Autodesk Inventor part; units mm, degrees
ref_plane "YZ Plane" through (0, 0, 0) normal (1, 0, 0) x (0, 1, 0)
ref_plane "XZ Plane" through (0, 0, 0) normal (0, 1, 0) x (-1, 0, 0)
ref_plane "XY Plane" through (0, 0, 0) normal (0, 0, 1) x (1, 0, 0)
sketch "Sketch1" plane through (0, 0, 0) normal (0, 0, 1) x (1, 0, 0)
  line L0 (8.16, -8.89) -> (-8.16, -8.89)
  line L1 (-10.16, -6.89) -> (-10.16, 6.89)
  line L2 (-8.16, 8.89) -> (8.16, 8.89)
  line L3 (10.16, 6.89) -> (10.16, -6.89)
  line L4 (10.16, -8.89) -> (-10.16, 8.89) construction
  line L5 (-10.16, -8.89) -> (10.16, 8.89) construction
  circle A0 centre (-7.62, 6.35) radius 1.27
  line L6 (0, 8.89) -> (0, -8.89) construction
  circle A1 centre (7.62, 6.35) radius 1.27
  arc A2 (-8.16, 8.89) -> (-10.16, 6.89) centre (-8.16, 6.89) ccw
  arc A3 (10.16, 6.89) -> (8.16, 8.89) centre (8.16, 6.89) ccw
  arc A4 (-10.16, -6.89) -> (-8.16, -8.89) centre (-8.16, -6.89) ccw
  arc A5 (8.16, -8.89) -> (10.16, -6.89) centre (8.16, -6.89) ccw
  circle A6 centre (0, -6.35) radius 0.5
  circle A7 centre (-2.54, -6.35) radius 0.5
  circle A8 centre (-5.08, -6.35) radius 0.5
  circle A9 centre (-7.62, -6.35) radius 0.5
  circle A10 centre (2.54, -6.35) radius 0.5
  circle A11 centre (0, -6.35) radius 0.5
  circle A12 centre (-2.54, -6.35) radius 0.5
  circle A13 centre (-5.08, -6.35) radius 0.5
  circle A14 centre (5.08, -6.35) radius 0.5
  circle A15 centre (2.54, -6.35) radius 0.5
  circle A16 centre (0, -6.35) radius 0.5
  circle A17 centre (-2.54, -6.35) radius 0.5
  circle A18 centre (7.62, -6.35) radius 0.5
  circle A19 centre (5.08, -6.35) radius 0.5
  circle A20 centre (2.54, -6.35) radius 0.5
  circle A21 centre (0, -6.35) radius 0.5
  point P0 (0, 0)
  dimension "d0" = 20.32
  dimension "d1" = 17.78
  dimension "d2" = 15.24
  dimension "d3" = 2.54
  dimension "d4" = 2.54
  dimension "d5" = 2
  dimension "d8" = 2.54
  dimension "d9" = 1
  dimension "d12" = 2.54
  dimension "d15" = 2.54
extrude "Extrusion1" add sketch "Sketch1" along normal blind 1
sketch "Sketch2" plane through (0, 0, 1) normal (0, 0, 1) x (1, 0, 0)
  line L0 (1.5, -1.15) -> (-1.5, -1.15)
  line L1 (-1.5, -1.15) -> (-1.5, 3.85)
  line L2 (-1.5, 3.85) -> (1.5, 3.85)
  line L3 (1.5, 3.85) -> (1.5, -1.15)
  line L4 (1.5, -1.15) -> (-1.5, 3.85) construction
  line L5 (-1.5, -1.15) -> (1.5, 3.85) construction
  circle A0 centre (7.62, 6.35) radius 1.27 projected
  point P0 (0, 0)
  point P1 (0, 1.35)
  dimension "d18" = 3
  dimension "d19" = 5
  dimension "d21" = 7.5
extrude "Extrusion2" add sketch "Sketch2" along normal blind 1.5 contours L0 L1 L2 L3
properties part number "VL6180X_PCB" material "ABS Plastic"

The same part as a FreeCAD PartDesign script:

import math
import FreeCAD as App
import Part
import Sketcher

V = App.Vector

doc = App.newDocument("Part")
body = doc.addObject("PartDesign::Body", "Body")

# Sketch on XY plane
sketch1 = doc.addObject("Sketcher::SketchObject", "Sketch")
body.addObject(sketch1)
sketch1.AttachmentSupport = (doc.XY_Plane, [""])
sketch1.MapMode = "FlatFace"
sketch1.addGeometry([
    Part.LineSegment(V(-8.2, -8.9, 0), V(8.2, -8.9, 0)),  # 0
    Part.ArcOfCircle(Part.Circle(V(8.2, -6.9, 0), V(0, 0, 1), 2), math.radians(-90), math.radians(0)),  # 1
    Part.LineSegment(V(10.2, -6.9, 0), V(10.2, 6.9, 0)),  # 2
    Part.ArcOfCircle(Part.Circle(V(8.2, 6.9, 0), V(0, 0, 1), 2), math.radians(0), math.radians(90)),  # 3
    Part.LineSegment(V(8.2, 8.9, 0), V(-8.2, 8.9, 0)),  # 4
    Part.ArcOfCircle(Part.Circle(V(-8.2, 6.9, 0), V(0, 0, 1), 2), math.radians(90), math.radians(180)),  # 5
    Part.LineSegment(V(-10.2, 6.9, 0), V(-10.2, -6.9, 0)),  # 6
    Part.ArcOfCircle(Part.Circle(V(-8.2, -6.9, 0), V(0, 0, 1), 2), math.radians(180), math.radians(270)),  # 7
    Part.Circle(V(-7.6, -6.3, 0), V(0, 0, 1), 0.5),  # 8
    Part.Circle(V(-5.1, -6.3, 0), V(0, 0, 1), 0.5),  # 9
    Part.Circle(V(-2.5, -6.3, 0), V(0, 0, 1), 0.5),  # 10
    Part.Circle(V(0, -6.3, 0), V(0, 0, 1), 0.5),  # 11
    Part.Circle(V(2.5, -6.3, 0), V(0, 0, 1), 0.5),  # 12
    Part.Circle(V(5.1, -6.3, 0), V(0, 0, 1), 0.5),  # 13
    Part.Circle(V(7.6, -6.3, 0), V(0, 0, 1), 0.5),  # 14
    Part.Circle(V(-7.6, 6.3, 0), V(0, 0, 1), 1.3),  # 15
    Part.Circle(V(7.6, 6.3, 0), V(0, 0, 1), 1.3),  # 16
], False)
sketch1.addConstraint([
    Sketcher.Constraint("Tangent", 0, 2, 1, 1),
    Sketcher.Constraint("Tangent", 1, 2, 2, 1),
    Sketcher.Constraint("Tangent", 2, 2, 3, 1),
    Sketcher.Constraint("Tangent", 3, 2, 4, 1),
    Sketcher.Constraint("Tangent", 4, 2, 5, 1),
    Sketcher.Constraint("Tangent", 5, 2, 6, 1),
    Sketcher.Constraint("Tangent", 6, 2, 7, 1),
    Sketcher.Constraint("Tangent", 7, 2, 0, 1),
    Sketcher.Constraint("Horizontal", 0),
    Sketcher.Constraint("Vertical", 2),
    Sketcher.Constraint("Horizontal", 4),
    Sketcher.Constraint("Vertical", 6),
    Sketcher.Constraint("Equal", 1, 3),
    Sketcher.Constraint("Equal", 3, 5),
    Sketcher.Constraint("Equal", 5, 7),
    Sketcher.Constraint("Equal", 8, 9),
    Sketcher.Constraint("Equal", 9, 10),
    Sketcher.Constraint("Equal", 10, 11),
    Sketcher.Constraint("Equal", 11, 12),
    Sketcher.Constraint("Equal", 12, 13),
    Sketcher.Constraint("Equal", 13, 14),
    Sketcher.Constraint("Equal", 15, 16),
    Sketcher.Constraint("Symmetric", 1, 3, 5, 3, -1, 1),
    Sketcher.Constraint("Symmetric", 14, 3, 15, 3, -1, 1),
    Sketcher.Constraint("Symmetric", 8, 3, 16, 3, -1, 1),
    Sketcher.Constraint("Symmetric", 10, 3, 12, 3, -2),
    Sketcher.Constraint("Symmetric", 9, 3, 13, 3, -2),
    Sketcher.Constraint("Symmetric", 8, 3, 14, 3, -2),
    Sketcher.Constraint("PointOnObject", 11, 3, -2),
    Sketcher.Constraint("Horizontal", 8, 3, 9, 3),
    Sketcher.Constraint("Horizontal", 9, 3, 10, 3),
    Sketcher.Constraint("Horizontal", 10, 3, 11, 3),
    Sketcher.Constraint("Diameter", 8, 1.0),
    Sketcher.Constraint("Radius", 1, 2.0),
    Sketcher.Constraint("Diameter", 15, 2.54),
    Sketcher.Constraint("DistanceX", 10, 3, -1, 1, 2.54),
    Sketcher.Constraint("DistanceX", 8, 3, 9, 3, 2.54),
    Sketcher.Constraint("DistanceX", 9, 3, 10, 3, 2.54),
    Sketcher.Constraint("DistanceY", 0, 2, 14, 3, 2.54),
    Sketcher.Constraint("DistanceX", 14, 3, 1, 2, 2.54),
    Sketcher.Constraint("DistanceY", 14, 3, 3, 2, 15.24),
])
pad1 = doc.addObject("PartDesign::Pad", "Pad")
body.addObject(pad1)
pad1.Profile = sketch1
pad1.Length = 1

# Sketch on XY plane
sketch2 = doc.addObject("Sketcher::SketchObject", "Sketch001")
body.addObject(sketch2)
sketch2.AttachmentSupport = (doc.XY_Plane, [""])
sketch2.MapMode = "FlatFace"
sketch2.AttachmentOffset = App.Placement(V(0, 0, 1), App.Rotation())
sketch2.addGeometry([
    Part.LineSegment(V(-1.5, -1.1, 0), V(1.5, -1.1, 0)),
    Part.LineSegment(V(1.5, -1.1, 0), V(1.5, 3.9, 0)),
    Part.LineSegment(V(1.5, 3.9, 0), V(-1.5, 3.9, 0)),
    Part.LineSegment(V(-1.5, 3.9, 0), V(-1.5, -1.1, 0)),
], False)
sketch2.addConstraint([
    Sketcher.Constraint("Coincident", 0, 2, 1, 1),
    Sketcher.Constraint("Coincident", 1, 2, 2, 1),
    Sketcher.Constraint("Coincident", 2, 2, 3, 1),
    Sketcher.Constraint("Coincident", 3, 2, 0, 1),
    Sketcher.Constraint("Horizontal", 0),
    Sketcher.Constraint("Vertical", 1),
    Sketcher.Constraint("Horizontal", 2),
    Sketcher.Constraint("Vertical", 3),
    Sketcher.Constraint("DistanceX", 0, 1, 0, 2, 3.0),
    Sketcher.Constraint("DistanceY", 1, 1, 1, 2, 5.0),
    Sketcher.Constraint("DistanceX", -1, 1, 0, 2, 1.5),
    Sketcher.Constraint("DistanceY", 0, 2, -1, 1, 1.15),
])
pad2 = doc.addObject("PartDesign::Pad", "Pad001")
body.addObject(pad2)
pad2.Profile = sketch2
pad2.Length = 1.5

doc.recompute()
